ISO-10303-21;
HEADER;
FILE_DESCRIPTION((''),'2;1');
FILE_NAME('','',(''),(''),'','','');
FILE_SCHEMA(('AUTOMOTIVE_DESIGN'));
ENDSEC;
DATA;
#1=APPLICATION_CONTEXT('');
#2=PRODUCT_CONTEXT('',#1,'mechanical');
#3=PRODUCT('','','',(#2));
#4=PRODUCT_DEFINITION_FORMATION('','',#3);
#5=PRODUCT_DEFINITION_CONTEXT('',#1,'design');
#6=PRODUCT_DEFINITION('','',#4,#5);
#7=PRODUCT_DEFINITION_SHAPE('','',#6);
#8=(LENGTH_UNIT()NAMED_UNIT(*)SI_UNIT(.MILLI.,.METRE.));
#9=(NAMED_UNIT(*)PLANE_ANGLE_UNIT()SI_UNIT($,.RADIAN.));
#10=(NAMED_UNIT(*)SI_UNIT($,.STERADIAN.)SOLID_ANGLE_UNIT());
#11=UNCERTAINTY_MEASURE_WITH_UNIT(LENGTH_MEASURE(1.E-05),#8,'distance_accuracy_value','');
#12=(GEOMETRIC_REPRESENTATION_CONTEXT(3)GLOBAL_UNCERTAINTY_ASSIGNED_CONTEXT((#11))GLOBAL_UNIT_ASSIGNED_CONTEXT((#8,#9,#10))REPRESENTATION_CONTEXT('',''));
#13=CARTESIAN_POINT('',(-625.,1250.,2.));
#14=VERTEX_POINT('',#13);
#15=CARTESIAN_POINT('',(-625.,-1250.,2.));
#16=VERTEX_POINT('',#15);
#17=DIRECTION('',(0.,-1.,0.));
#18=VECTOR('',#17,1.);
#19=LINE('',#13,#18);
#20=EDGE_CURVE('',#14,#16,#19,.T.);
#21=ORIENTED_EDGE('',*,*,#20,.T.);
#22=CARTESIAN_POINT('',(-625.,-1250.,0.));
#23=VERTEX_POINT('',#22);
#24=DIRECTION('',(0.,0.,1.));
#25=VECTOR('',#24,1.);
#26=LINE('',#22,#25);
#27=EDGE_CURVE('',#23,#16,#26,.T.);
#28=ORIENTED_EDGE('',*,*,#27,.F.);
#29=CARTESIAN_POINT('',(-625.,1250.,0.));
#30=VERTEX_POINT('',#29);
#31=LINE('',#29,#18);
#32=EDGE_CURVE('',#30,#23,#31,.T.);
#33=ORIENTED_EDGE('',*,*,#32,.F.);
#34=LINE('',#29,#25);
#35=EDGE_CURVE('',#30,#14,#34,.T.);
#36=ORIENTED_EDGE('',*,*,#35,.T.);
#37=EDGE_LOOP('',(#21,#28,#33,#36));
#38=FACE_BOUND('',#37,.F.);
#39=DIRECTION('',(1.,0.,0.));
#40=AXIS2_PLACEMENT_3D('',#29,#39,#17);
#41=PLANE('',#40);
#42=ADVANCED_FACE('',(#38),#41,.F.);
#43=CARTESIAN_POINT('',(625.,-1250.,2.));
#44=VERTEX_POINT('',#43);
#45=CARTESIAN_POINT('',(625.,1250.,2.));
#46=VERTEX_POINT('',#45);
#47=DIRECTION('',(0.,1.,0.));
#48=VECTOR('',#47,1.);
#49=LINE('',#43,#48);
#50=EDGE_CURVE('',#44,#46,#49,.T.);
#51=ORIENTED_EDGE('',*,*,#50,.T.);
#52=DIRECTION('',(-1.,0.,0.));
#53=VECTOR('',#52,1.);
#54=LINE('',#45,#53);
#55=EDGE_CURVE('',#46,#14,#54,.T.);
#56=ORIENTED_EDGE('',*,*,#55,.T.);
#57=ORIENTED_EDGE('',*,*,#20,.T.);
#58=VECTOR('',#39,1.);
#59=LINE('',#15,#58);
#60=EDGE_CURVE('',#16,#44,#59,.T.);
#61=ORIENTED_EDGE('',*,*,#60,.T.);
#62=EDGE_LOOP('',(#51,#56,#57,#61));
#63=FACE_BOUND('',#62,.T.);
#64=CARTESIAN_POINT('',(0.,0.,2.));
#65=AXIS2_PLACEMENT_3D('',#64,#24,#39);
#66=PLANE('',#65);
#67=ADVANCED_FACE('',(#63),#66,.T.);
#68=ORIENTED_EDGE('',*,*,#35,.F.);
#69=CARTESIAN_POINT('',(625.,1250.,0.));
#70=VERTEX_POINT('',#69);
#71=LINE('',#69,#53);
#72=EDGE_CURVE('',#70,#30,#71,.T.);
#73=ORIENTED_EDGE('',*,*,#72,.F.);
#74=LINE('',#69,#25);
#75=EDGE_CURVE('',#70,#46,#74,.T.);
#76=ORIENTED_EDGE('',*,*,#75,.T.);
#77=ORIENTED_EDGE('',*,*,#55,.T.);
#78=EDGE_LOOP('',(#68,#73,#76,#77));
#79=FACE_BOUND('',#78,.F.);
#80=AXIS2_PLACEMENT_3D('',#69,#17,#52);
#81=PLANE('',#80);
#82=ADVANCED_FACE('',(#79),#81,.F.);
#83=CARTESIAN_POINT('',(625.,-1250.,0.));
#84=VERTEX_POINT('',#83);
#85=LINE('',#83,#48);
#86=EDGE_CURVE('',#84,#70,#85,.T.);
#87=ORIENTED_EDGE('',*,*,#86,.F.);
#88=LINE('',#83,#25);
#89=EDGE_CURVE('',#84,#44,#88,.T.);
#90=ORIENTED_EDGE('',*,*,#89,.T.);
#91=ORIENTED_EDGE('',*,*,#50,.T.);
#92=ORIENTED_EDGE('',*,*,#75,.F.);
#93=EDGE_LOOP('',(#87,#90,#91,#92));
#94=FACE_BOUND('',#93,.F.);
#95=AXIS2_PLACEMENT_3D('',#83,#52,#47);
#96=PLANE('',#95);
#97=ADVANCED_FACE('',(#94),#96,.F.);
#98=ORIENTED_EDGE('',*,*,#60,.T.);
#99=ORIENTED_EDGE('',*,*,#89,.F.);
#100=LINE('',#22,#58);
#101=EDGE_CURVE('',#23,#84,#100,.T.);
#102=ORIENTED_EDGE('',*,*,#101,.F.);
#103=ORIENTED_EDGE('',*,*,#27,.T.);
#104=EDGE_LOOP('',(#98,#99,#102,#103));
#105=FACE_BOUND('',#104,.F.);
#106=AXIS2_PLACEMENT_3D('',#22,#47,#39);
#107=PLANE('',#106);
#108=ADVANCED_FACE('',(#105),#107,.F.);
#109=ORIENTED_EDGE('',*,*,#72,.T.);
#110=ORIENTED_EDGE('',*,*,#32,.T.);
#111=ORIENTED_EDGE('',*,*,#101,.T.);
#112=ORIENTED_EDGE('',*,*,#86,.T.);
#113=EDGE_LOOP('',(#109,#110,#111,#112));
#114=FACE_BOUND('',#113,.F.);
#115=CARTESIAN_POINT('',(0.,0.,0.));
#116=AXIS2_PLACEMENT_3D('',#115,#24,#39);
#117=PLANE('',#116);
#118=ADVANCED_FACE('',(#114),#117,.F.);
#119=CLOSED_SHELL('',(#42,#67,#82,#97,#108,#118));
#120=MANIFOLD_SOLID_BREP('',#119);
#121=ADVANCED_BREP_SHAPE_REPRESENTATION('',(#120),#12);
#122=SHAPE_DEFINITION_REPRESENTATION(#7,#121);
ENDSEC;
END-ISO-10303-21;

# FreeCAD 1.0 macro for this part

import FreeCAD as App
import Part
import Sketcher


def add_polygon(sketch, points):
    """Adds a closed chain of lines whose ends are joined by coincident constraints."""
    first, n = sketch.GeometryCount, len(points)
    for a, b in zip(points, points[1:] + points[:1]):
        sketch.addGeometry(Part.LineSegment(App.Vector(*a, 0), App.Vector(*b, 0)), False)
    for i in range(n):
        sketch.addConstraint(Sketcher.Constraint("Coincident", first + i, 2, first + (i + 1) % n, 1))

doc = App.newDocument("Part")
body = doc.addObject("PartDesign::Body", "Body")

sketch1 = body.newObject("Sketcher::SketchObject", "Sketch")
sketch1.AttachmentSupport = (doc.getObject("XY_Plane"), [""])
sketch1.MapMode = "FlatFace"
add_polygon(sketch1, [(-625, 1250), (-625, -1250), (625, -1250), (625, 1250)])
sketch1.addConstraint([
    Sketcher.Constraint("Vertical", 0),
    Sketcher.Constraint("Horizontal", 1),
    Sketcher.Constraint("Vertical", 2),
    Sketcher.Constraint("Horizontal", 3),
    Sketcher.Constraint("Symmetric", 0, 2, 2, 2, -1, 1),
    Sketcher.Constraint("DistanceX", 1, 1, 1, 2, 1250.0),
    Sketcher.Constraint("DistanceY", 0, 2, 0, 1, 2500.0),
])
pad1 = body.newObject("PartDesign::Pad", "Pad")
pad1.Profile = sketch1
pad1.Length = 2

doc.recompute()
